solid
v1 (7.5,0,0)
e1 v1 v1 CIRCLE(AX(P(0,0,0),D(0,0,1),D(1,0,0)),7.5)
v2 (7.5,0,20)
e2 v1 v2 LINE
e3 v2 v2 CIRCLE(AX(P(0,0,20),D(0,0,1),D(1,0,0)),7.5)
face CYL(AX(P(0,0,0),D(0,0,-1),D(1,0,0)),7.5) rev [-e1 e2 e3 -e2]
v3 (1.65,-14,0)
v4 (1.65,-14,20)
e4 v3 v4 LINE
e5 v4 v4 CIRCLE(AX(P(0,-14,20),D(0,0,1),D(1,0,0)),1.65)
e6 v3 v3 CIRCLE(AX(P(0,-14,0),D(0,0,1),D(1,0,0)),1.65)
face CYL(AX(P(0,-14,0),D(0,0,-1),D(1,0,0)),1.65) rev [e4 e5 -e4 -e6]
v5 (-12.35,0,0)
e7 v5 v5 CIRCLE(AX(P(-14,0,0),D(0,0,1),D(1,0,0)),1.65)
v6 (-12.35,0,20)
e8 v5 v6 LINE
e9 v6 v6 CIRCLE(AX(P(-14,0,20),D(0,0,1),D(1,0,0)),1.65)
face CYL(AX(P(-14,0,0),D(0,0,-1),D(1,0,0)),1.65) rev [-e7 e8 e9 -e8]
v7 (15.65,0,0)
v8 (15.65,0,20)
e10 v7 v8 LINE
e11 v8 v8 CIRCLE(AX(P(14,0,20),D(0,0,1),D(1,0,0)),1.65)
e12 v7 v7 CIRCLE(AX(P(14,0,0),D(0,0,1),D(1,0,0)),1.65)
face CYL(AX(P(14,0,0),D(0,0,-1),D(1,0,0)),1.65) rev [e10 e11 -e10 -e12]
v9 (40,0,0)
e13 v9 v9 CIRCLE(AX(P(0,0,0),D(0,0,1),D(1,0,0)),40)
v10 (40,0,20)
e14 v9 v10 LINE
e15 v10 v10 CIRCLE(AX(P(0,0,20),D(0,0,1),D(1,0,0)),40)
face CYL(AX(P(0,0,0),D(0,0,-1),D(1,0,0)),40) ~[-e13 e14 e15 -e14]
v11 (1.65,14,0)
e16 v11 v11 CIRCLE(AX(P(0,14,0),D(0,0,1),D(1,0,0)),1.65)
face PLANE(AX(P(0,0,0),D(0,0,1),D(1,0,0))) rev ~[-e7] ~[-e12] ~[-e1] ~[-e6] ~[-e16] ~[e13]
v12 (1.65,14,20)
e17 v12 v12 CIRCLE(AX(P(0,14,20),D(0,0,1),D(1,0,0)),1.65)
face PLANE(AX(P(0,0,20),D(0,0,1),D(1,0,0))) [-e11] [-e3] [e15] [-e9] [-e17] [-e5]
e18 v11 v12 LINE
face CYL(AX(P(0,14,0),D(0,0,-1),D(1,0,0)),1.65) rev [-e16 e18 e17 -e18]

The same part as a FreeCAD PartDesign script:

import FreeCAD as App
import Part
import Sketcher
Q = App.Units.Quantity

doc = App.newDocument("Part")
body = doc.addObject("PartDesign::Body", "Body")

# Sketch on XY plane
sketch1 = doc.addObject("Sketcher::SketchObject", "Sketch")
body.addObject(sketch1)
sketch1.AttachmentSupport = (doc.XY_Plane, [""])
sketch1.MapMode = "FlatFace"
sketch1.addGeometry(Part.Circle(App.Vector(0, 0, 0), App.Vector(0, 0, 1), 40), False)
sketch1.addGeometry(Part.Circle(App.Vector(0, 0, 0), App.Vector(0, 0, 1), 8), False)
sketch1.addConstraint(Sketcher.Constraint("Coincident", 0, 3, -1, 1))
sketch1.addConstraint(Sketcher.Constraint("Coincident", 1, 3, -1, 1))
sketch1.addConstraint(Sketcher.Constraint("Diameter", 0, Q("80 mm")))
sketch1.addConstraint(Sketcher.Constraint("Diameter", 1, Q("15 mm")))
pad1 = doc.addObject("PartDesign::Pad", "Pad")
body.addObject(pad1)
pad1.Profile = sketch1
pad1.Length = 20

# Sketch on XY plane
sketch2 = doc.addObject("Sketcher::SketchObject", "Sketch001")
body.addObject(sketch2)
sketch2.AttachmentSupport = (doc.XY_Plane, [""])
sketch2.MapMode = "FlatFace"
sketch2.addGeometry(Part.Circle(App.Vector(0, -14, 0), App.Vector(0, 0, 1), 1.6), False)
sketch2.addGeometry(Part.Circle(App.Vector(14, 0, 0), App.Vector(0, 0, 1), 1.6), False)
sketch2.addGeometry(Part.Circle(App.Vector(0, 14, 0), App.Vector(0, 0, 1), 1.6), False)
sketch2.addGeometry(Part.Circle(App.Vector(-14, 0, 0), App.Vector(0, 0, 1), 1.6), False)
sketch2.addConstraint(Sketcher.Constraint("Equal", 0, 1))
sketch2.addConstraint(Sketcher.Constraint("Equal", 1, 2))
sketch2.addConstraint(Sketcher.Constraint("Equal", 2, 3))
sketch2.addConstraint(Sketcher.Constraint("Symmetric", 0, 3, 2, 3, -1, 1))
sketch2.addConstraint(Sketcher.Constraint("Symmetric", 1, 3, 3, 3, -1, 1))
sketch2.addConstraint(Sketcher.Constraint("PointOnObject", 0, 3, -2))
sketch2.addConstraint(Sketcher.Constraint("PointOnObject", 1, 3, -1))
sketch2.addConstraint(Sketcher.Constraint("Diameter", 0, Q("3.3 mm")))
sketch2.addConstraint(Sketcher.Constraint("DistanceY", 0, 3, -1, 1, Q("14 mm")))
sketch2.addConstraint(Sketcher.Constraint("DistanceX", -1, 1, 1, 3, Q("14 mm")))
pocket1 = doc.addObject("PartDesign::Pocket", "Pocket")
body.addObject(pocket1)
pocket1.Profile = sketch2
pocket1.Length = 20
pocket1.Reversed = True

doc.recompute()
